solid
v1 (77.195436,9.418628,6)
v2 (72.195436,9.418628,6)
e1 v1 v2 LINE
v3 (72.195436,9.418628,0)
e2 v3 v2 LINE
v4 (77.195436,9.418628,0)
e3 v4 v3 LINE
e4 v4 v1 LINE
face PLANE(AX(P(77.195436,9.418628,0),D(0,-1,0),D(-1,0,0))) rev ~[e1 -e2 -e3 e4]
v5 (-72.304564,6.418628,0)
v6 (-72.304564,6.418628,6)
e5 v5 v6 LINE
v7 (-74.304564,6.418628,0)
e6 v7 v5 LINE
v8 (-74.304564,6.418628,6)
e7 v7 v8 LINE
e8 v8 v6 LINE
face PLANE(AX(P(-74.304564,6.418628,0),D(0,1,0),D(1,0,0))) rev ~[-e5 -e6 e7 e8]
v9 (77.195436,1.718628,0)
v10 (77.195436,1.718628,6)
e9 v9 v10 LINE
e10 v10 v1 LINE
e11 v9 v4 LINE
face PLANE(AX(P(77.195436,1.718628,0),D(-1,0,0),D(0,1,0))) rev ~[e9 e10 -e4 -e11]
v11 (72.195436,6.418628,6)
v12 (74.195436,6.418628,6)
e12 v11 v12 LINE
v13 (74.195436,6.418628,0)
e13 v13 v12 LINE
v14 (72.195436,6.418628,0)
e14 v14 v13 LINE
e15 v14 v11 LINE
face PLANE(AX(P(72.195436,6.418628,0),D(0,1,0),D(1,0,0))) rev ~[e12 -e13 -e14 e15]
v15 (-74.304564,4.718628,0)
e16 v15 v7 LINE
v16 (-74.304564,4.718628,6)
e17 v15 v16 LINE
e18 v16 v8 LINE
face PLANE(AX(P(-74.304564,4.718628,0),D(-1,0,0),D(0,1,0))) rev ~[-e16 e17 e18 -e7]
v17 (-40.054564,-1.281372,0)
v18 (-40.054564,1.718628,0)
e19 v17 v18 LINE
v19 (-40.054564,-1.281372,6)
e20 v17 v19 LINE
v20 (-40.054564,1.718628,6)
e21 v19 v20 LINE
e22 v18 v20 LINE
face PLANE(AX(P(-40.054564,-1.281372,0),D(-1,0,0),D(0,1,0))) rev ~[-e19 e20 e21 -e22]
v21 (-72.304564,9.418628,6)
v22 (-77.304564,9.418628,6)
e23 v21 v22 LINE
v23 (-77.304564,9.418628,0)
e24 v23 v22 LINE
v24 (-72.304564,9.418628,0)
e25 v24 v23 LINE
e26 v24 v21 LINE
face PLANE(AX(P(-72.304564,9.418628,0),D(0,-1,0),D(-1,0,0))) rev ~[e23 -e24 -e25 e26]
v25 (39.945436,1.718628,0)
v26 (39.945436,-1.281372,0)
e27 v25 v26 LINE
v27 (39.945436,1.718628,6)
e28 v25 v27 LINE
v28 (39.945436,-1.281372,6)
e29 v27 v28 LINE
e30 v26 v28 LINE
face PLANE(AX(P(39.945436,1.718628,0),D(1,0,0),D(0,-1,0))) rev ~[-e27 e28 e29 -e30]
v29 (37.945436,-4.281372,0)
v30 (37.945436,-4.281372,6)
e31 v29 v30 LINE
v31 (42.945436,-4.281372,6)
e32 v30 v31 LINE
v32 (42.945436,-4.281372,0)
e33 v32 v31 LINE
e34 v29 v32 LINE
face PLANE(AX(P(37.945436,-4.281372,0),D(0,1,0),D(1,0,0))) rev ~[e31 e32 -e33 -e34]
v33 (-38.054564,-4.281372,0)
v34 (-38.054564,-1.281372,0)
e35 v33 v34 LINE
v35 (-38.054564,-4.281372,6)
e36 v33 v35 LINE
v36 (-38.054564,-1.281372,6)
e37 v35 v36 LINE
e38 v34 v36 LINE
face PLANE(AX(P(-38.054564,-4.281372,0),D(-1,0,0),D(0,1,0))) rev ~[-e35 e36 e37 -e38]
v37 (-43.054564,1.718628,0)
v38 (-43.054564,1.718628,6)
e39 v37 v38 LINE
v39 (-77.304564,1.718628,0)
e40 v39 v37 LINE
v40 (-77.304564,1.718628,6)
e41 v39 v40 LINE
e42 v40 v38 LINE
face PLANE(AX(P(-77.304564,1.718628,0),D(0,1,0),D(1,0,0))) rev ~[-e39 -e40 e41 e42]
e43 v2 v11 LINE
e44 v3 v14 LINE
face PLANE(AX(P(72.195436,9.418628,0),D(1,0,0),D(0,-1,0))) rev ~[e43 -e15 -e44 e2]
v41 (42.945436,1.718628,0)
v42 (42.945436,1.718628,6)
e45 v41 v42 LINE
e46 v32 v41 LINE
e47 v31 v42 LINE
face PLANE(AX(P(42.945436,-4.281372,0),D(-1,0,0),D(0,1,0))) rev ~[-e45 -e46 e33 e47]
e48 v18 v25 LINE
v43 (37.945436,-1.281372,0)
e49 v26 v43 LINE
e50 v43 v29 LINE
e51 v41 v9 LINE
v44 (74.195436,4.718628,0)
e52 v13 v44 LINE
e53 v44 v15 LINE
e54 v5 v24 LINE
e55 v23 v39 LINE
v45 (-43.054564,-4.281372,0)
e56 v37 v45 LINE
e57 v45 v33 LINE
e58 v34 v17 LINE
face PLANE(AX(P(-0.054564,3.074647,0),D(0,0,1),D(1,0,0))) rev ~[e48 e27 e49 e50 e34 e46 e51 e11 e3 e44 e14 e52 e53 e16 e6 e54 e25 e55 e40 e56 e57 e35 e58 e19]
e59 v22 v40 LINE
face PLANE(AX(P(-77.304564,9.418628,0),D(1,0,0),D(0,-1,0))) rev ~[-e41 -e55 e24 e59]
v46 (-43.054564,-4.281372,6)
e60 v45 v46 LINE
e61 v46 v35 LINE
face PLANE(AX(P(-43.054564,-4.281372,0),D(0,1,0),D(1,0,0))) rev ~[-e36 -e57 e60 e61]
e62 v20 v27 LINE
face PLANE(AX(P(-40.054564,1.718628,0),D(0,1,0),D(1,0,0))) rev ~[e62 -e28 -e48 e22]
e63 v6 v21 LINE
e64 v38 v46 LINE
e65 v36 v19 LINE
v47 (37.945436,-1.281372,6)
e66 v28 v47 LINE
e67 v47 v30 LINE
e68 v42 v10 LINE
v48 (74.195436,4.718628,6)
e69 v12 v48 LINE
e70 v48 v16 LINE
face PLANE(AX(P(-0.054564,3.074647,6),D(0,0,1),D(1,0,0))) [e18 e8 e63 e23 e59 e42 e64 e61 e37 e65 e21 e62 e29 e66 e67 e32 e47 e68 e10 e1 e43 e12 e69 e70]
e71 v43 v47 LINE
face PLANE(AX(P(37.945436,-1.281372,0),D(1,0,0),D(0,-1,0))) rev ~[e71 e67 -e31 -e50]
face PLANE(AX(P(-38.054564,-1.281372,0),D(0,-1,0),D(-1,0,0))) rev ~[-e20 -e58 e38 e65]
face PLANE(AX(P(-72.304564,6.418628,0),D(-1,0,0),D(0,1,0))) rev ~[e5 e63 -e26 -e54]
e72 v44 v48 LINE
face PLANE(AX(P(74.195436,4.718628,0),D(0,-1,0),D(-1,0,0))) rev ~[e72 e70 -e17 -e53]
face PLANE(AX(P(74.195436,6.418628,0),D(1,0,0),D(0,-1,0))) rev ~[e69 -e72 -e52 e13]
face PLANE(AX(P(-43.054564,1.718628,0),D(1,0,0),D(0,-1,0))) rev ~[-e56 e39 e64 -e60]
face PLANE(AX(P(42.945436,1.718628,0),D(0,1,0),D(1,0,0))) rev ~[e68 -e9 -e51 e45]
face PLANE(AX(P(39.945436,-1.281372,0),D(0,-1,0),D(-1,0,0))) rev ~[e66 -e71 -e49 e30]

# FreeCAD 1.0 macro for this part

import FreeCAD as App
import Part
import Sketcher
from FreeCAD import Vector

doc = App.newDocument("Part")
body = doc.addObject("PartDesign::Body", "Body")

sketch1 = body.newObject("Sketcher::SketchObject", "Sketch")
sketch1.AttachmentSupport = (doc.getObject("XY_Plane"), [""])
sketch1.MapMode = "FlatFace"
sketch1.addGeometry(Part.LineSegment(Vector(-72.3, 6.4, 0), Vector(-72.3, 9.4, 0)), False)
sketch1.addGeometry(Part.LineSegment(Vector(-72.3, 9.4, 0), Vector(-77.3, 9.4, 0)), False)
sketch1.addGeometry(Part.LineSegment(Vector(-77.3, 9.4, 0), Vector(-77.3, 1.7, 0)), False)
sketch1.addGeometry(Part.LineSegment(Vector(-77.3, 1.7, 0), Vector(-43.1, 1.7, 0)), False)
sketch1.addGeometry(Part.LineSegment(Vector(-43.1, 1.7, 0), Vector(-43.1, -4.3, 0)), False)
sketch1.addGeometry(Part.LineSegment(Vector(-43.1, -4.3, 0), Vector(-38.1, -4.3, 0)), False)
sketch1.addGeometry(Part.LineSegment(Vector(-38.1, -4.3, 0), Vector(-38.1, -1.3, 0)), False)
sketch1.addGeometry(Part.LineSegment(Vector(-38.1, -1.3, 0), Vector(-40.1, -1.3, 0)), False)
sketch1.addGeometry(Part.LineSegment(Vector(-40.1, -1.3, 0), Vector(-40.1, 1.7, 0)), False)
sketch1.addGeometry(Part.LineSegment(Vector(-40.1, 1.7, 0), Vector(39.9, 1.7, 0)), False)
sketch1.addGeometry(Part.LineSegment(Vector(39.9, 1.7, 0), Vector(39.9, -1.3, 0)), False)
sketch1.addGeometry(Part.LineSegment(Vector(39.9, -1.3, 0), Vector(37.9, -1.3, 0)), False)
sketch1.addGeometry(Part.LineSegment(Vector(37.9, -1.3, 0), Vector(37.9, -4.3, 0)), False)
sketch1.addGeometry(Part.LineSegment(Vector(37.9, -4.3, 0), Vector(42.9, -4.3, 0)), False)
sketch1.addGeometry(Part.LineSegment(Vector(42.9, -4.3, 0), Vector(42.9, 1.7, 0)), False)
sketch1.addGeometry(Part.LineSegment(Vector(42.9, 1.7, 0), Vector(77.2, 1.7, 0)), False)
sketch1.addGeometry(Part.LineSegment(Vector(77.2, 1.7, 0), Vector(77.2, 9.4, 0)), False)
sketch1.addGeometry(Part.LineSegment(Vector(77.2, 9.4, 0), Vector(72.2, 9.4, 0)), False)
sketch1.addGeometry(Part.LineSegment(Vector(72.2, 9.4, 0), Vector(72.2, 6.4, 0)), False)
sketch1.addGeometry(Part.LineSegment(Vector(72.2, 6.4, 0), Vector(74.2, 6.4, 0)), False)
sketch1.addGeometry(Part.LineSegment(Vector(74.2, 6.4, 0), Vector(74.2, 4.7, 0)), False)
sketch1.addGeometry(Part.LineSegment(Vector(74.2, 4.7, 0), Vector(-74.3, 4.7, 0)), False)
sketch1.addGeometry(Part.LineSegment(Vector(-74.3, 4.7, 0), Vector(-74.3, 6.4, 0)), False)
sketch1.addGeometry(Part.LineSegment(Vector(-74.3, 6.4, 0), Vector(-72.3, 6.4, 0)), False)
sketch1.addConstraint(Sketcher.Constraint("Coincident", 0, 2, 1, 1))
sketch1.addConstraint(Sketcher.Constraint("Coincident", 1, 2, 2, 1))
sketch1.addConstraint(Sketcher.Constraint("Coincident", 2, 2, 3, 1))
sketch1.addConstraint(Sketcher.Constraint("Coincident", 3, 2, 4, 1))
sketch1.addConstraint(Sketcher.Constraint("Coincident", 4, 2, 5, 1))
sketch1.addConstraint(Sketcher.Constraint("Coincident", 5, 2, 6, 1))
sketch1.addConstraint(Sketcher.Constraint("Coincident", 6, 2, 7, 1))
sketch1.addConstraint(Sketcher.Constraint("Coincident", 7, 2, 8, 1))
sketch1.addConstraint(Sketcher.Constraint("Coincident", 8, 2, 9, 1))
sketch1.addConstraint(Sketcher.Constraint("Coincident", 9, 2, 10, 1))
sketch1.addConstraint(Sketcher.Constraint("Coincident", 10, 2, 11, 1))
sketch1.addConstraint(Sketcher.Constraint("Coincident", 11, 2, 12, 1))
sketch1.addConstraint(Sketcher.Constraint("Coincident", 12, 2, 13, 1))
sketch1.addConstraint(Sketcher.Constraint("Coincident", 13, 2, 14, 1))
sketch1.addConstraint(Sketcher.Constraint("Coincident", 14, 2, 15, 1))
sketch1.addConstraint(Sketcher.Constraint("Coincident", 15, 2, 16, 1))
sketch1.addConstraint(Sketcher.Constraint("Coincident", 16, 2, 17, 1))
sketch1.addConstraint(Sketcher.Constraint("Coincident", 17, 2, 18, 1))
sketch1.addConstraint(Sketcher.Constraint("Coincident", 18, 2, 19, 1))
sketch1.addConstraint(Sketcher.Constraint("Coincident", 19, 2, 20, 1))
sketch1.addConstraint(Sketcher.Constraint("Coincident", 20, 2, 21, 1))
sketch1.addConstraint(Sketcher.Constraint("Coincident", 21, 2, 22, 1))
sketch1.addConstraint(Sketcher.Constraint("Coincident", 22, 2, 23, 1))
sketch1.addConstraint(Sketcher.Constraint("Coincident", 23, 2, 0, 1))
sketch1.addConstraint(Sketcher.Constraint("Vertical", 0))
sketch1.addConstraint(Sketcher.Constraint("Horizontal", 1))
sketch1.addConstraint(Sketcher.Constraint("Vertical", 2))
sketch1.addConstraint(Sketcher.Constraint("Horizontal", 3))
sketch1.addConstraint(Sketcher.Constraint("Vertical", 4))
sketch1.addConstraint(Sketcher.Constraint("Horizontal", 5))
sketch1.addConstraint(Sketcher.Constraint("Vertical", 6))
sketch1.addConstraint(Sketcher.Constraint("Horizontal", 7))
sketch1.addConstraint(Sketcher.Constraint("Vertical", 8))
sketch1.addConstraint(Sketcher.Constraint("Horizontal", 9))
sketch1.addConstraint(Sketcher.Constraint("Vertical", 10))
sketch1.addConstraint(Sketcher.Constraint("Horizontal", 11))
sketch1.addConstraint(Sketcher.Constraint("Vertical", 12))
sketch1.addConstraint(Sketcher.Constraint("Horizontal", 13))
sketch1.addConstraint(Sketcher.Constraint("Vertical", 14))
sketch1.addConstraint(Sketcher.Constraint("Horizontal", 15))
sketch1.addConstraint(Sketcher.Constraint("Vertical", 16))
sketch1.addConstraint(Sketcher.Constraint("Horizontal", 17))
sketch1.addConstraint(Sketcher.Constraint("Vertical", 18))
sketch1.addConstraint(Sketcher.Constraint("Horizontal", 19))
sketch1.addConstraint(Sketcher.Constraint("Vertical", 20))
sketch1.addConstraint(Sketcher.Constraint("Horizontal", 21))
sketch1.addConstraint(Sketcher.Constraint("Vertical", 22))
sketch1.addConstraint(Sketcher.Constraint("Horizontal", 23))
sketch1.addConstraint(Sketcher.Constraint("Horizontal", 3, 2, 8, 2))
sketch1.addConstraint(Sketcher.Constraint("Horizontal", 7, 2, 10, 2))
sketch1.addConstraint(Sketcher.Constraint("Horizontal", 5, 2, 12, 2))
sketch1.addConstraint(Sketcher.Constraint("Horizontal", 9, 2, 14, 2))
sketch1.addConstraint(Sketcher.Constraint("Horizontal", 1, 2, 16, 2))
sketch1.addConstraint(Sketcher.Constraint("Horizontal", 19, 2, 22, 2))
sketch1.addConstraint(Sketcher.Constraint("Equal", 1, 5))
sketch1.addConstraint(Sketcher.Constraint("Equal", 7, 11))
sketch1.addConstraint(Sketcher.Constraint("Equal", 5, 13))
sketch1.addConstraint(Sketcher.Constraint("Equal", 3, 15))
sketch1.addConstraint(Sketcher.Constraint("Equal", 13, 17))
sketch1.addConstraint(Sketcher.Constraint("Equal", 11, 19))
sketch1.addConstraint(Sketcher.Constraint("Equal", 19, 23))
sketch1.addConstraint(Sketcher.Constraint("Equal", 0, 6))
sketch1.addConstraint(Sketcher.Constraint("Equal", 6, 8))
sketch1.addConstraint(Sketcher.Constraint("DistanceX", 1, 2, 1, 1, 5.0))
sketch1.addConstraint(Sketcher.Constraint("DistanceX", 7, 2, 7, 1, 2.0))
sketch1.addConstraint(Sketcher.Constraint("DistanceX", 9, 1, 9, 2, 80.0))
sketch1.addConstraint(Sketcher.Constraint("DistanceY", 0, 1, 0, 2, 3.0))
sketch1.addConstraint(Sketcher.Constraint("DistanceX", 21, 2, 21, 1, 148.5))
sketch1.addConstraint(Sketcher.Constraint("DistanceY", 2, 2, 2, 1, 7.7))
sketch1.addConstraint(Sketcher.Constraint("DistanceY", 20, 2, 20, 1, 1.7))
sketch1.addConstraint(Sketcher.Constraint("DistanceX", 0, 2, -1, 1, 72.304564))
sketch1.addConstraint(Sketcher.Constraint("DistanceY", -1, 1, 0, 2, 9.418628))
pad1 = body.newObject("PartDesign::Pad", "Pad")
pad1.Profile = sketch1
pad1.Length = 6

doc.recompute()
